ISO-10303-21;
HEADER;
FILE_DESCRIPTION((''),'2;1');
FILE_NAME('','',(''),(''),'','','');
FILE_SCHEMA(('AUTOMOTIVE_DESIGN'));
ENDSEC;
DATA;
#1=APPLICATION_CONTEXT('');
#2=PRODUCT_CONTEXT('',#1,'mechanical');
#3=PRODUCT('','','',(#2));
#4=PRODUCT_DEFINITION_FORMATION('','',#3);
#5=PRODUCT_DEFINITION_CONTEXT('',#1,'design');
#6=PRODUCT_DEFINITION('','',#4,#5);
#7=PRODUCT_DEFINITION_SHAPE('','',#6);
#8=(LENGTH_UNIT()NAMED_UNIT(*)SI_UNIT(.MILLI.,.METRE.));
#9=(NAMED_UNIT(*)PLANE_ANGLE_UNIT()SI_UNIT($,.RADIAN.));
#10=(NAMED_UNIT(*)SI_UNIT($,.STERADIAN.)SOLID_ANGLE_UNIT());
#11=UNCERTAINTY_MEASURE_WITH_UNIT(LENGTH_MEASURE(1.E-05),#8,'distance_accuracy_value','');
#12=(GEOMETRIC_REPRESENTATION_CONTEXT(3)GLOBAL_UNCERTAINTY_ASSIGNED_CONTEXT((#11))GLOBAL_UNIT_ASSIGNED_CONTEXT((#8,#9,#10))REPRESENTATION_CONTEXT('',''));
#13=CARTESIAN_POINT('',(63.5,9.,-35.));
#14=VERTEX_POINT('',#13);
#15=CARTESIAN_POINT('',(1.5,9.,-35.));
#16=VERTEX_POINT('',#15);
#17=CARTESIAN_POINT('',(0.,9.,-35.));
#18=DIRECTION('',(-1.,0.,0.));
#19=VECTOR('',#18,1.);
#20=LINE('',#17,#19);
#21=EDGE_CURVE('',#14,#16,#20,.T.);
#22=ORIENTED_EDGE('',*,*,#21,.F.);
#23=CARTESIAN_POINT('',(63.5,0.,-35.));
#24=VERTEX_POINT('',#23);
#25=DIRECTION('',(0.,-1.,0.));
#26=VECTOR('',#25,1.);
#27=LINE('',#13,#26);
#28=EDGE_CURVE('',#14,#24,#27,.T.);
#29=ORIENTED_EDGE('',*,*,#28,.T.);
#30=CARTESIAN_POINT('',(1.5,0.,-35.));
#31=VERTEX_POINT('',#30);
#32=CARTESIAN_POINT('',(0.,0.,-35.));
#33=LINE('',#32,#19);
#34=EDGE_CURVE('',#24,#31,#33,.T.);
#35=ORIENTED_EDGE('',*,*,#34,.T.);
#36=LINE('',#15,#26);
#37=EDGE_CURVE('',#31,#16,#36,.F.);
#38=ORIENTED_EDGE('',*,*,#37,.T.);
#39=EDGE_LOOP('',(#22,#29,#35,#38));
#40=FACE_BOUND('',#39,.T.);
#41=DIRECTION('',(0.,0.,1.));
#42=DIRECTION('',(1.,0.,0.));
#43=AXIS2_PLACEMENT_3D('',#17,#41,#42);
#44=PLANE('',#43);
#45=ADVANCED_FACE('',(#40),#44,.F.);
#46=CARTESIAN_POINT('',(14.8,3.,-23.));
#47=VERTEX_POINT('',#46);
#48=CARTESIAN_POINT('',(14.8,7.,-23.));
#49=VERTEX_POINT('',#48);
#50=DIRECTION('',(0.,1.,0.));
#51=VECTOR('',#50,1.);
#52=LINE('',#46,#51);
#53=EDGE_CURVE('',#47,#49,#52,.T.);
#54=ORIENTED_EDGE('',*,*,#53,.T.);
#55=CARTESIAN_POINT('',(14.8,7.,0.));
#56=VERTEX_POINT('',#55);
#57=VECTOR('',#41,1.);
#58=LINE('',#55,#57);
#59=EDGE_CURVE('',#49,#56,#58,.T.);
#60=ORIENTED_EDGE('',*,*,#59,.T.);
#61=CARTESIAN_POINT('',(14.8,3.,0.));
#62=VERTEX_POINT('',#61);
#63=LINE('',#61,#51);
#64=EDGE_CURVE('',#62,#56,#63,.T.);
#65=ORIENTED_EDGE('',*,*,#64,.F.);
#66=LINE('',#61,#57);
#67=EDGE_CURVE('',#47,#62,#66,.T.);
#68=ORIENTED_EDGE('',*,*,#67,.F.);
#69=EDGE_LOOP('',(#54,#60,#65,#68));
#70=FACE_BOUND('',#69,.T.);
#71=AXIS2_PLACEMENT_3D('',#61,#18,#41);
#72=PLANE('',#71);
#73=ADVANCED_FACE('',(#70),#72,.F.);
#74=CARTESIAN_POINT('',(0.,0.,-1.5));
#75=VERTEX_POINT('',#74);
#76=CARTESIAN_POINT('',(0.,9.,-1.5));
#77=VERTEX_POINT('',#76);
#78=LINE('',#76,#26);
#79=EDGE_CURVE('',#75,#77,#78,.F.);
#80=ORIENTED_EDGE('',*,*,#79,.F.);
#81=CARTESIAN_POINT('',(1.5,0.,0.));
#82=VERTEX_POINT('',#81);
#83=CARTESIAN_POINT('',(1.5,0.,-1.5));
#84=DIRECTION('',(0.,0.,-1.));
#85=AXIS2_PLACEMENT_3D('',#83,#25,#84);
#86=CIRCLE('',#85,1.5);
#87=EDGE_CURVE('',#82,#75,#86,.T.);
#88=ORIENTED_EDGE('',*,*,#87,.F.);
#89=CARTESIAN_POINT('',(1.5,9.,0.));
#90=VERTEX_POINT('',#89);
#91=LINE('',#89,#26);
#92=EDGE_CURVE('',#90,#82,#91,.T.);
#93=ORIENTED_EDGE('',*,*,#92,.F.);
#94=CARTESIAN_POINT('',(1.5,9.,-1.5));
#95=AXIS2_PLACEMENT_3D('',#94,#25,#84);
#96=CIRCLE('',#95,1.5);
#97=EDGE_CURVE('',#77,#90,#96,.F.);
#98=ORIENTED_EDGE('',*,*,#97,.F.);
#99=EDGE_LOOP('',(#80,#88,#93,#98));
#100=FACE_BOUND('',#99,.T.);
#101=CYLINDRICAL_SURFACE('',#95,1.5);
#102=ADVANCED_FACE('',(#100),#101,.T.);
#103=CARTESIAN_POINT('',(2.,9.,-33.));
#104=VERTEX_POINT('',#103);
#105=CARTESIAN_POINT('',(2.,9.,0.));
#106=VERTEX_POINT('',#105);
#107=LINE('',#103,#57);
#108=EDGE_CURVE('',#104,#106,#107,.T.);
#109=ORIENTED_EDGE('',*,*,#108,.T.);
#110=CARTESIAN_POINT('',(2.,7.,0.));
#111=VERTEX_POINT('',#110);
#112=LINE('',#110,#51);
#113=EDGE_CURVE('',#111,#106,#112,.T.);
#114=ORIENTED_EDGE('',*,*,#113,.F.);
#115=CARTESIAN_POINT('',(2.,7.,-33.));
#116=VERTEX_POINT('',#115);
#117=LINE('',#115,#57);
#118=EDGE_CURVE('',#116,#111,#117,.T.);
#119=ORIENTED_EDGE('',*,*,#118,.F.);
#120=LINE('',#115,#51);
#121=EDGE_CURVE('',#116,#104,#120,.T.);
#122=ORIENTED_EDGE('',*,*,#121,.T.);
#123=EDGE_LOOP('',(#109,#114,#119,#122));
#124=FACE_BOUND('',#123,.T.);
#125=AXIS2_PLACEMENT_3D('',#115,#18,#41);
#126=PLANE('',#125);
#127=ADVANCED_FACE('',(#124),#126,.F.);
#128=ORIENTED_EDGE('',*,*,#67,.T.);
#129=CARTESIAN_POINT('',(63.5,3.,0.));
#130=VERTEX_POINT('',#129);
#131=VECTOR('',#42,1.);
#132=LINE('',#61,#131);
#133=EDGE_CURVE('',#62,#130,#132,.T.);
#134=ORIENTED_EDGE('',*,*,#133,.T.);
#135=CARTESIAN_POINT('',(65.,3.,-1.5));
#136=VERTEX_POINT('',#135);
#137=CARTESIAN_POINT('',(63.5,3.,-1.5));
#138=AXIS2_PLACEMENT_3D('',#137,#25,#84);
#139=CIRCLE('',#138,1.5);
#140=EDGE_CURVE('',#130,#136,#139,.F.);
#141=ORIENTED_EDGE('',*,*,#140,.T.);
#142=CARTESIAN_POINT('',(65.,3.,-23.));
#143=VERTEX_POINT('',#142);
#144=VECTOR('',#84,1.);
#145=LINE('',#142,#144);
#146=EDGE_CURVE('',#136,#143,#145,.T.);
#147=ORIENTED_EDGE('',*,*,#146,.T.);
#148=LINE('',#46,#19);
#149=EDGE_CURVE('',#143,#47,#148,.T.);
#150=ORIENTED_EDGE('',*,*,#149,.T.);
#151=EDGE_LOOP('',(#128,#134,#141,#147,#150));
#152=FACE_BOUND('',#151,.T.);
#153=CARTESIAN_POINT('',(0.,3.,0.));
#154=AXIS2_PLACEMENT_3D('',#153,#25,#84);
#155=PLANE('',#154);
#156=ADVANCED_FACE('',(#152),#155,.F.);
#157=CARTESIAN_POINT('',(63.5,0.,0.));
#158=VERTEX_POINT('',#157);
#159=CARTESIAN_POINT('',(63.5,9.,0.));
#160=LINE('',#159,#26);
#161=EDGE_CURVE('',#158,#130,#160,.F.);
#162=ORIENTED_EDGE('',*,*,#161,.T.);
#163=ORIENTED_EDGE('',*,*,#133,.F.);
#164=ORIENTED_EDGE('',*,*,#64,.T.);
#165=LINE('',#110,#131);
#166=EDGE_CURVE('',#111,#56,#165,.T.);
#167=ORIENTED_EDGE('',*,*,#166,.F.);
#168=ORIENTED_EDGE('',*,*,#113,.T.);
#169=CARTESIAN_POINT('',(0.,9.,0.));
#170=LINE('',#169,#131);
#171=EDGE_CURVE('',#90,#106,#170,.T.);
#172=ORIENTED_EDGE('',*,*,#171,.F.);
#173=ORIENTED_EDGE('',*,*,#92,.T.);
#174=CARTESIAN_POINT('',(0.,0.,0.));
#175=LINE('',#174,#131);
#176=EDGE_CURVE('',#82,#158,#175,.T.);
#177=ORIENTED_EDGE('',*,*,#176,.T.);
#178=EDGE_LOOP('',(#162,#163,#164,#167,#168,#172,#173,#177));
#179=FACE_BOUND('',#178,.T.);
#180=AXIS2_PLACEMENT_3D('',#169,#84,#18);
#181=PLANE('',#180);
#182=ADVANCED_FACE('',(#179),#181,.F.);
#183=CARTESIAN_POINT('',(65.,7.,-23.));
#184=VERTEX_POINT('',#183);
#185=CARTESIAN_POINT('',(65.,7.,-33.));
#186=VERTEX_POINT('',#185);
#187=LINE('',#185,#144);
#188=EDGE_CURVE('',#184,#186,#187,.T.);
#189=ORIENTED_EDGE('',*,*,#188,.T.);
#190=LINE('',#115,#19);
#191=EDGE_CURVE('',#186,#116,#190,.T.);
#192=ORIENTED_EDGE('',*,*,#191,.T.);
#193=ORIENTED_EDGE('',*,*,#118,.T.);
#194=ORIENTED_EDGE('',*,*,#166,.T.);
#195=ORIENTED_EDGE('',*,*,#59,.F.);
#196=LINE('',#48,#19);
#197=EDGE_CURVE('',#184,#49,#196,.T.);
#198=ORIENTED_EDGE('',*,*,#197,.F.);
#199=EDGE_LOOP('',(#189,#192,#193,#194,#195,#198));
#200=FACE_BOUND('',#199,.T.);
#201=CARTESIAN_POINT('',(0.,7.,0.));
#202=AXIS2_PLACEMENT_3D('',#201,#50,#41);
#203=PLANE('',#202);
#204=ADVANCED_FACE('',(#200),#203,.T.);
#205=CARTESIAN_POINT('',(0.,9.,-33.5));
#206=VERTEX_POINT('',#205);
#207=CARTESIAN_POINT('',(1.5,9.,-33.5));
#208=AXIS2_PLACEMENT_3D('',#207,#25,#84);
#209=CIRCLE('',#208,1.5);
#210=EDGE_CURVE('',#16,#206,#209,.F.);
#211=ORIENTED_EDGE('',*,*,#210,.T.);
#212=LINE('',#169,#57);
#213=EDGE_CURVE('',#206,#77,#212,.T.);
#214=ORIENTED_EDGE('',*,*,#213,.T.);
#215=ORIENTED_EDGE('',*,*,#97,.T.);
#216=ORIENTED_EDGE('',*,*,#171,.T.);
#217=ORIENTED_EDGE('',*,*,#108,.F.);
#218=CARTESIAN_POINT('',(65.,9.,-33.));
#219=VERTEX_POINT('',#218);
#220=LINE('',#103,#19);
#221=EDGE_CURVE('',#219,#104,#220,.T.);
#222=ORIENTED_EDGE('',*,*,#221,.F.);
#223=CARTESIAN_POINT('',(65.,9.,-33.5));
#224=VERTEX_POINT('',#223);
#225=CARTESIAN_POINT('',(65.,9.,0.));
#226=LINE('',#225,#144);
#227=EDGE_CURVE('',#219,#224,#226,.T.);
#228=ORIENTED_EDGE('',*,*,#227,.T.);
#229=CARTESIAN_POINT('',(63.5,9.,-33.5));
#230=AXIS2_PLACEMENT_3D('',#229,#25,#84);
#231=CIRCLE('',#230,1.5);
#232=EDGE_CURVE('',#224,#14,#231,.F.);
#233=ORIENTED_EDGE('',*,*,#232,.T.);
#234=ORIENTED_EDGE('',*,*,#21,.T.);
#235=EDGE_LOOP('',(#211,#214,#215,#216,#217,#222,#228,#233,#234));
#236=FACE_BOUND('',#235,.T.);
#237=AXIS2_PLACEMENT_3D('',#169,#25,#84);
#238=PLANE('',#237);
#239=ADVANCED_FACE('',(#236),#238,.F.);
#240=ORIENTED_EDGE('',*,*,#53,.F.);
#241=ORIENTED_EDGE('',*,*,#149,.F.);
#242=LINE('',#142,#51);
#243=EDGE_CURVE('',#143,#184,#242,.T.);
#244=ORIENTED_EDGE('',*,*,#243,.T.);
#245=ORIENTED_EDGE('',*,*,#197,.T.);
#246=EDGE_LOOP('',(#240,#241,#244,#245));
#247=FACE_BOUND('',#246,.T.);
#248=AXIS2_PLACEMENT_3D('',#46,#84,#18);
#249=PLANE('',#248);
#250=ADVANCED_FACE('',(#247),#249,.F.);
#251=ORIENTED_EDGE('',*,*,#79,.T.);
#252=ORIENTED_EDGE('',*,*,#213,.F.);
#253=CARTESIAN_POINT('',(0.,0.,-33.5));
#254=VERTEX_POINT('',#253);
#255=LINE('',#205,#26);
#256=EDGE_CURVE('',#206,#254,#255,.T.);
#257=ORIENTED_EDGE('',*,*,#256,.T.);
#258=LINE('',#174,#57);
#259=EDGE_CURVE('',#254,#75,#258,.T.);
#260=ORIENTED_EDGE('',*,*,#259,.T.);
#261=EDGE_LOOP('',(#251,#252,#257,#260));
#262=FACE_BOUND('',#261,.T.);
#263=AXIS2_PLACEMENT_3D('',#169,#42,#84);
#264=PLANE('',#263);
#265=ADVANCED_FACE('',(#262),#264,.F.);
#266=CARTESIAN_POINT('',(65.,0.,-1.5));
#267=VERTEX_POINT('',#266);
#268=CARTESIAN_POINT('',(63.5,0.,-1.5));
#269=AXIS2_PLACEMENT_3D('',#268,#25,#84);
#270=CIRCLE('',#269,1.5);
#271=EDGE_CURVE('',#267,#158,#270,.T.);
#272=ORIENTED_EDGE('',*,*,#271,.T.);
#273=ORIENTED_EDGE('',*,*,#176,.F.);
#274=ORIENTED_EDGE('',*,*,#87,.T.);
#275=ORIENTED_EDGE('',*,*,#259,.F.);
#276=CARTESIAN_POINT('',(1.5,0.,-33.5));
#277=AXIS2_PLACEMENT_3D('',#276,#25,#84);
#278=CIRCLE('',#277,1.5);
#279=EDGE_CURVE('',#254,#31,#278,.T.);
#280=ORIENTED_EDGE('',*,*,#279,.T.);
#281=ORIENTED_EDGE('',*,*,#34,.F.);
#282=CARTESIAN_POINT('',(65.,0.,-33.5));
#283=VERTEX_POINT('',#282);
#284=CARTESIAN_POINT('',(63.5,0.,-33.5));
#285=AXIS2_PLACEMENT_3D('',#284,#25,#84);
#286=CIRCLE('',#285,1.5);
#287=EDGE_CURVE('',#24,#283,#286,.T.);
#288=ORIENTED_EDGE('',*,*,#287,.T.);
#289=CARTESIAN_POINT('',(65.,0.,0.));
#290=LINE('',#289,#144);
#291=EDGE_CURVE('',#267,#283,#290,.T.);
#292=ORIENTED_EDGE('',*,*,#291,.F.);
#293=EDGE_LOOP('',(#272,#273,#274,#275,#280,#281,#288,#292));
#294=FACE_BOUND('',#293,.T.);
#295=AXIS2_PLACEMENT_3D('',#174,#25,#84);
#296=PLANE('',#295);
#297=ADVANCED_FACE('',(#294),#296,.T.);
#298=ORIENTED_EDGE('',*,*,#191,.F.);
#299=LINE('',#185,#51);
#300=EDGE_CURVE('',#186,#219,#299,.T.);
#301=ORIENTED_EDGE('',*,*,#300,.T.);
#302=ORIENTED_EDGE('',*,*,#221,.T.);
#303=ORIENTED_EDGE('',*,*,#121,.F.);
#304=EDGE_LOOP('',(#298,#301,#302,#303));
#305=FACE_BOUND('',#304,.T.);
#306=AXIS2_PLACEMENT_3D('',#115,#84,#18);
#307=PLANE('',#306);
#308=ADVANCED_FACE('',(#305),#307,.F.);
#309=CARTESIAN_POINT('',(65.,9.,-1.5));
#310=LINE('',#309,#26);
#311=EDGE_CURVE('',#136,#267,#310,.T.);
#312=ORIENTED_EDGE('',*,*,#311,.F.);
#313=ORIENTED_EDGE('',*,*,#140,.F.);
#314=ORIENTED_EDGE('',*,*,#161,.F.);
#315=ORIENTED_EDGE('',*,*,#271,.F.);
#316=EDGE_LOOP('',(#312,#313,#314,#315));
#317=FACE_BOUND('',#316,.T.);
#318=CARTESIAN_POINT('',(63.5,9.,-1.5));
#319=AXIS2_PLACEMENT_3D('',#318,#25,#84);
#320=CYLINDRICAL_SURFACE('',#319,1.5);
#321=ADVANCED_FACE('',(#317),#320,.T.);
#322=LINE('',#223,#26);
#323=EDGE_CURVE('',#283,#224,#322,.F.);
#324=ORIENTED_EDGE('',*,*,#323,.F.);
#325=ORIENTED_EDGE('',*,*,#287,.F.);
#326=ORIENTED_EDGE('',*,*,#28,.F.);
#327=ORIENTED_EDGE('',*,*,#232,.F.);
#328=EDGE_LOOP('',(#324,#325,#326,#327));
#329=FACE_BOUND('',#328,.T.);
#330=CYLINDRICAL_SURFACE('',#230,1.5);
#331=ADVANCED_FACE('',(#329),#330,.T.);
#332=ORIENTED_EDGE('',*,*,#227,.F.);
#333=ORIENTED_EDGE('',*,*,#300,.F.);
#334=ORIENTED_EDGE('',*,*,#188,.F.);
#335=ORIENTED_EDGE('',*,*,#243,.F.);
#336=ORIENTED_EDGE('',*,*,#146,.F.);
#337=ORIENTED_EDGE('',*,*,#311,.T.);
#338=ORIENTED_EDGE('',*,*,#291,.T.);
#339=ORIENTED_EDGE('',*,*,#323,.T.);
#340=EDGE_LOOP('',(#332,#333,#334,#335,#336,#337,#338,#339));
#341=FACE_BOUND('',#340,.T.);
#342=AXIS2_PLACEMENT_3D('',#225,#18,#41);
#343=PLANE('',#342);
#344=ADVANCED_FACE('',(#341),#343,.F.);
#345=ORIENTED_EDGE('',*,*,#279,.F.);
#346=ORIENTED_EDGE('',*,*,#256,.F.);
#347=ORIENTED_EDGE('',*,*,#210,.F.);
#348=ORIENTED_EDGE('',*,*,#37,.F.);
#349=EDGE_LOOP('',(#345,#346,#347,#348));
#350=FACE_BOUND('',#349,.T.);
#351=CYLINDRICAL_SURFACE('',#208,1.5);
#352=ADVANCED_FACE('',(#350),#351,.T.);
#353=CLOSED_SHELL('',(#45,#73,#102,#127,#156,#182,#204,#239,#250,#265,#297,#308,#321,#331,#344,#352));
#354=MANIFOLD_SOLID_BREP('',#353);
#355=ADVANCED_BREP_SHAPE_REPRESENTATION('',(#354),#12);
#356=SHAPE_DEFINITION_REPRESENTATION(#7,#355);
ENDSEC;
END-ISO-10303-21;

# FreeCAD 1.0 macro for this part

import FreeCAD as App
import Part
import Sketcher
from FreeCAD import Vector
Q = App.Units.Quantity


def edges_at(feature, points):
    """Names of the edges that pass closest to the given points."""
    edges = feature.Shape.Edges
    near = lambda p: min(range(len(edges)), key=lambda i: edges[i].distToShape(Part.Vertex(*p))[0])
    return sorted({f"Edge{near(p) + 1}" for p in points})

doc = App.newDocument("Part")
params = doc.addObject("Spreadsheet::Sheet", "Params")
for row, (alias, value) in enumerate([
    ("sketch1_width", "65 mm"),
    ("sketch1_height", "35 mm"),
    ("pad1_length", "9 mm"),
    ("sketch2_width", "63 mm"),
    ("sketch2_height", "33 mm"),
    ("pocket1_length", "2 mm"),
    ("sketch3_height", "23 mm"),
    ("sketch3_width", "50.2 mm"),
    ("pocket2_length", "4 mm"),
    ("fillet_radius", "1.5 mm"),
], start=1):
    params.set(f"A{row}", alias)
    params.set(f"B{row}", "=" + value)
    params.setAlias(f"B{row}", alias)

body = doc.addObject("PartDesign::Body", "Body")

# Sketch on XZ plane
sketch1 = doc.addObject("Sketcher::SketchObject", "Sketch")
body.addObject(sketch1)
sketch1.AttachmentSupport = (doc.XZ_Plane, [""])
sketch1.MapMode = "FlatFace"
sketch1.addGeometry([
    Part.LineSegment(Vector(0, -35, 0), Vector(0, 0, 0)),
    Part.LineSegment(Vector(0, 0, 0), Vector(65, 0, 0)),
    Part.LineSegment(Vector(65, 0, 0), Vector(65, -35, 0)),
    Part.LineSegment(Vector(65, -35, 0), Vector(0, -35, 0)),
], False)
sketch1.addConstraint([
    Sketcher.Constraint("Coincident", 0, 2, 1, 1),
    Sketcher.Constraint("Coincident", 1, 2, 2, 1),
    Sketcher.Constraint("Coincident", 2, 2, 3, 1),
    Sketcher.Constraint("Coincident", 3, 2, 0, 1),
    Sketcher.Constraint("Vertical", 0),
    Sketcher.Constraint("Horizontal", 1),
    Sketcher.Constraint("Vertical", 2),
    Sketcher.Constraint("Horizontal", 3),
    Sketcher.Constraint("Coincident", 0, 2, -1, 1),
    Sketcher.Constraint("DistanceX", 1, 1, 1, 2, Q("65 mm")),
    Sketcher.Constraint("DistanceY", 0, 1, 0, 2, Q("35 mm")),
])
sketch1.setExpression("Constraints[9]", "Params.sketch1_width")
sketch1.setExpression("Constraints[10]", "Params.sketch1_height")
pad1 = doc.addObject("PartDesign::Pad", "Pad")
body.addObject(pad1)
pad1.Profile = sketch1
pad1.setExpression("Length", "Params.pad1_length")
pad1.Reversed = True

# Sketch on XZ plane
sketch2 = doc.addObject("Sketcher::SketchObject", "Sketch001")
body.addObject(sketch2)
sketch2.AttachmentSupport = (doc.XZ_Plane, [""])
sketch2.MapMode = "FlatFace"
sketch2.AttachmentOffset = App.Placement(Vector(0, 0, -9), App.Rotation())
sketch2.addGeometry([
    Part.LineSegment(Vector(2, -33, 0), Vector(2, 0, 0)),
    Part.LineSegment(Vector(2, 0, 0), Vector(65, 0, 0)),
    Part.LineSegment(Vector(65, 0, 0), Vector(65, -33, 0)),
    Part.LineSegment(Vector(65, -33, 0), Vector(2, -33, 0)),
], False)
sketch2.addConstraint([
    Sketcher.Constraint("Coincident", 0, 2, 1, 1),
    Sketcher.Constraint("Coincident", 1, 2, 2, 1),
    Sketcher.Constraint("Coincident", 2, 2, 3, 1),
    Sketcher.Constraint("Coincident", 3, 2, 0, 1),
    Sketcher.Constraint("Vertical", 0),
    Sketcher.Constraint("Horizontal", 1),
    Sketcher.Constraint("Vertical", 2),
    Sketcher.Constraint("Horizontal", 3),
    Sketcher.Constraint("PointOnObject", 0, 2, -1),
    Sketcher.Constraint("DistanceX", 1, 1, 1, 2, Q("63 mm")),
    Sketcher.Constraint("DistanceY", 0, 1, 0, 2, Q("33 mm")),
    Sketcher.Constraint("DistanceX", -1, 1, 0, 2, Q("2 mm")),
])
sketch2.setExpression("Constraints[9]", "Params.sketch2_width")
sketch2.setExpression("Constraints[10]", "Params.sketch2_height")
pocket1 = doc.addObject("PartDesign::Pocket", "Pocket")
body.addObject(pocket1)
pocket1.Profile = sketch2
pocket1.setExpression("Length", "Params.pocket1_length")
pocket1.Reversed = True

# Sketch on XZ plane
sketch3 = doc.addObject("Sketcher::SketchObject", "Sketch002")
body.addObject(sketch3)
sketch3.AttachmentSupport = (doc.XZ_Plane, [""])
sketch3.MapMode = "FlatFace"
sketch3.AttachmentOffset = App.Placement(Vector(0, 0, -7), App.Rotation())
sketch3.addGeometry([
    Part.LineSegment(Vector(15, -23, 0), Vector(15, 0, 0)),
    Part.LineSegment(Vector(15, 0, 0), Vector(65, 0, 0)),
    Part.LineSegment(Vector(65, 0, 0), Vector(65, -23, 0)),
    Part.LineSegment(Vector(65, -23, 0), Vector(15, -23, 0)),
], False)
sketch3.addConstraint([
    Sketcher.Constraint("Coincident", 0, 2, 1, 1),
    Sketcher.Constraint("Coincident", 1, 2, 2, 1),
    Sketcher.Constraint("Coincident", 2, 2, 3, 1),
    Sketcher.Constraint("Coincident", 3, 2, 0, 1),
    Sketcher.Constraint("Vertical", 0),
    Sketcher.Constraint("Horizontal", 1),
    Sketcher.Constraint("Vertical", 2),
    Sketcher.Constraint("Horizontal", 3),
    Sketcher.Constraint("PointOnObject", 0, 2, -1),
    Sketcher.Constraint("DistanceY", 0, 1, 0, 2, Q("23 mm")),
    Sketcher.Constraint("DistanceX", 1, 1, 1, 2, Q("50.2 mm")),
    Sketcher.Constraint("DistanceX", -1, 1, 1, 2, Q("65 mm")),
])
sketch3.setExpression("Constraints[9]", "Params.sketch3_height")
sketch3.setExpression("Constraints[10]", "Params.sketch3_width")
pocket2 = doc.addObject("PartDesign::Pocket", "Pocket001")
body.addObject(pocket2)
pocket2.Profile = sketch3
pocket2.setExpression("Length", "Params.pocket2_length")
pocket2.Reversed = True
doc.recompute()

fillet = doc.addObject("PartDesign::Fillet", "Fillet")
body.addObject(fillet)
fillet.Base = (pocket2, edges_at(pocket2, [
    (65, 1.5, 0),
    (0, 4.5, -35),
    (65, 4.5, -35),
    (0, 4.5, 0),
]))
fillet.setExpression("Radius", "Params.fillet_radius")

doc.recompute()
